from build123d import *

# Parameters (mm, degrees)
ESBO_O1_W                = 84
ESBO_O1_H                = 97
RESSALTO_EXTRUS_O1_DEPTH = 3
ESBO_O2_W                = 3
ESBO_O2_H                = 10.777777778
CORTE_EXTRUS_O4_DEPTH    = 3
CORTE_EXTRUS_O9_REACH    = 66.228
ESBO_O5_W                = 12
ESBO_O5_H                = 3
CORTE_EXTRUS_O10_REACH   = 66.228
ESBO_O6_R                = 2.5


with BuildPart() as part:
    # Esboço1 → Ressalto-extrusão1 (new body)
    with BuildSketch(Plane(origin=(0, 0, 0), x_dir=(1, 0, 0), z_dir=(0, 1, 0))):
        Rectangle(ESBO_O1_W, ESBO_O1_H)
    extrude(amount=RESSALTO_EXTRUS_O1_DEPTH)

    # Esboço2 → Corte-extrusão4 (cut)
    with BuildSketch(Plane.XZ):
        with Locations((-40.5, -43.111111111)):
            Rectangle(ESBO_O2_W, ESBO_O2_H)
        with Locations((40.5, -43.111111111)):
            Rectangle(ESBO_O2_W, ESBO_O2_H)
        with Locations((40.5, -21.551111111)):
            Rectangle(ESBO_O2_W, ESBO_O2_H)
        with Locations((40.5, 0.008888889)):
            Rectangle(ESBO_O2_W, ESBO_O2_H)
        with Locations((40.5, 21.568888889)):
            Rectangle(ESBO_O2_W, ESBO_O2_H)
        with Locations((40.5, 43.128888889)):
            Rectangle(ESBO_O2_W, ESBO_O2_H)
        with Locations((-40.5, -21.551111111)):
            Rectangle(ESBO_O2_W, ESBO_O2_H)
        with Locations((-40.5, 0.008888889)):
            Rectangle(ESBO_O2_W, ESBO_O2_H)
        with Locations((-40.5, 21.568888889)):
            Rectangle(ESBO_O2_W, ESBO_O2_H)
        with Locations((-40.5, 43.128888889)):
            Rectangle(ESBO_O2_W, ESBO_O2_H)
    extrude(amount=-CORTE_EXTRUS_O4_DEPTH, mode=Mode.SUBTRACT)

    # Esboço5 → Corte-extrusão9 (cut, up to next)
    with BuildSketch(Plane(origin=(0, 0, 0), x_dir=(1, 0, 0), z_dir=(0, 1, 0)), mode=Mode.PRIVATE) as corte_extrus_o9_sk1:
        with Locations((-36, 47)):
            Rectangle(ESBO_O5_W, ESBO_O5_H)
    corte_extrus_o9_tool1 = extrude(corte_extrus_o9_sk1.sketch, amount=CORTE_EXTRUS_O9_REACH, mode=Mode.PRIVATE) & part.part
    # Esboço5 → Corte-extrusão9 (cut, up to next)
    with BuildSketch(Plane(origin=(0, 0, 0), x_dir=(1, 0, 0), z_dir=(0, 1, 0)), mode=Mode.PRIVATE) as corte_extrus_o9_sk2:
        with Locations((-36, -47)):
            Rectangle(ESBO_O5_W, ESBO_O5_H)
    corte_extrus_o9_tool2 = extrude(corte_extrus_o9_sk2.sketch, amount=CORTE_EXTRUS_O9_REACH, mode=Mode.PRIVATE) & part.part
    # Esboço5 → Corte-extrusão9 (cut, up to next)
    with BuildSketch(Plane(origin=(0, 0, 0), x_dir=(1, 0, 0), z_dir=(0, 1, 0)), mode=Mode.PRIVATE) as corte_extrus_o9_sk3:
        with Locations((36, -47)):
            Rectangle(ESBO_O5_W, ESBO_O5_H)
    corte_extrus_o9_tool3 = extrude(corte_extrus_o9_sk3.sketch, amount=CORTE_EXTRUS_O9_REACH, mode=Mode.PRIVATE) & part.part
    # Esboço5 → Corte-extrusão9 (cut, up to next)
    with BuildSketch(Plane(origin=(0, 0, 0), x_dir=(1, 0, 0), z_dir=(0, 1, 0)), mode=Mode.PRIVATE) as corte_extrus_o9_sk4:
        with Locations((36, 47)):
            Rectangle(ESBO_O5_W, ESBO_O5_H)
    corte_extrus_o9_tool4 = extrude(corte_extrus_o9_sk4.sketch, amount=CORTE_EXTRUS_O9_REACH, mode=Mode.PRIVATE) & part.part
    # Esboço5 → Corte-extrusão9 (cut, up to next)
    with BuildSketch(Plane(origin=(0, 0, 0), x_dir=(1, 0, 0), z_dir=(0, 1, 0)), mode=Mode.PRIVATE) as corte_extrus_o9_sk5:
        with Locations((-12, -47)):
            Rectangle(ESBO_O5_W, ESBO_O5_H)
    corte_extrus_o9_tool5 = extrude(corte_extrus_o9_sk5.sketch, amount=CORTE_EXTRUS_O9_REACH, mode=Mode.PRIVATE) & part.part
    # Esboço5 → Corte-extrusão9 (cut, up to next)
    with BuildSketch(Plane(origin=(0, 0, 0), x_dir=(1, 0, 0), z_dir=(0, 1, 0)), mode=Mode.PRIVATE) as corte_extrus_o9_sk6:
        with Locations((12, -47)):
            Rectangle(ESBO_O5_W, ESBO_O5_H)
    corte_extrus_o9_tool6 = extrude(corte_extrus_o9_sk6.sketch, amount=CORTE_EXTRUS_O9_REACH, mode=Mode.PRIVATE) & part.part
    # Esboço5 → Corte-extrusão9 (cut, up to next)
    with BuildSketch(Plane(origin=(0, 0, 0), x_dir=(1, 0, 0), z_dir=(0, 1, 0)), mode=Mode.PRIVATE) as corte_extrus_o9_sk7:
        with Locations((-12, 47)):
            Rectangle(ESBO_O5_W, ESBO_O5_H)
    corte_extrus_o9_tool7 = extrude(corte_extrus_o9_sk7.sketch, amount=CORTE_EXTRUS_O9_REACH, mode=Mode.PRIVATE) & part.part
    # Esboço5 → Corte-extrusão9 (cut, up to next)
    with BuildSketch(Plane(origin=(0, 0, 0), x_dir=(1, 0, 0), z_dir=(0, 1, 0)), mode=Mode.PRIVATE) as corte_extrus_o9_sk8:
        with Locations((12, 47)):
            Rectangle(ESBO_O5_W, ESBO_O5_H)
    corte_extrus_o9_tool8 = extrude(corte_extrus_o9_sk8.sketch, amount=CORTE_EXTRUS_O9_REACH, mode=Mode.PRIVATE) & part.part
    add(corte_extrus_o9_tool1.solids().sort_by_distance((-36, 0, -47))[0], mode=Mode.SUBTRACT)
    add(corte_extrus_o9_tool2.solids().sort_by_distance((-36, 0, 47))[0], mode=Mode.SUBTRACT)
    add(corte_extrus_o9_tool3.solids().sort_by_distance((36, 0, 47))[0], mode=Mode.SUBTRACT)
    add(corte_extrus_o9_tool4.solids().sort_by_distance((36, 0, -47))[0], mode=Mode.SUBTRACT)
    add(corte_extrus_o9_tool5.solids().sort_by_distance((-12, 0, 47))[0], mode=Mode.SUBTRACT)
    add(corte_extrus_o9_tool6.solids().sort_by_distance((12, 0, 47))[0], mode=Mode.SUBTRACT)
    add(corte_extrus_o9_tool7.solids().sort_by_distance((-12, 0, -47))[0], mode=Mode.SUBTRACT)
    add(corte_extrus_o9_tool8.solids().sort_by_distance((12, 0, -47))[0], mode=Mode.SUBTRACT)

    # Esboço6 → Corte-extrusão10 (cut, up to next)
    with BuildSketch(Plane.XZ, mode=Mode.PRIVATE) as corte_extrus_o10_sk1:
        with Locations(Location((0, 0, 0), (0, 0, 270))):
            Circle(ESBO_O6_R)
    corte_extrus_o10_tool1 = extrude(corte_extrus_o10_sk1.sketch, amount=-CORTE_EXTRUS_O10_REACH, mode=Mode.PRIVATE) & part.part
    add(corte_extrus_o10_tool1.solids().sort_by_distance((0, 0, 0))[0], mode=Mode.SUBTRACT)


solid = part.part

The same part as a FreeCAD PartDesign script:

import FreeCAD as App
import Part
import Sketcher


def add_polygon(sketch, points):
    """Adds a closed chain of lines whose ends are joined by coincident constraints."""
    first, n = sketch.GeometryCount, len(points)
    for a, b in zip(points, points[1:] + points[:1]):
        sketch.addGeometry(Part.LineSegment(App.Vector(*a, 0), App.Vector(*b, 0)), False)
    for i in range(n):
        sketch.addConstraint(Sketcher.Constraint("Coincident", first + i, 2, first + (i + 1) % n, 1))

doc = App.newDocument("Part")
params = doc.addObject("Spreadsheet::Sheet", "Params")
for row, (alias, value) in enumerate([
    ("sketch1_width", "84 mm"),
    ("sketch1_height", "97 mm"),
    ("pad1_length", "3 mm"),
    ("sketch2_width", "3 mm"),
    ("pocket1_length", "3 mm"),
    ("sketch3_width", "12 mm"),
    ("sketch3_height", "3 mm"),
    ("sketch4_width", "12 mm"),
    ("sketch4_height", "3 mm"),
    ("sketch5_width", "12 mm"),
    ("sketch5_height", "3 mm"),
    ("sketch6_width", "12 mm"),
    ("sketch6_height", "3 mm"),
    ("sketch7_width", "12 mm"),
    ("sketch7_height", "3 mm"),
    ("sketch8_width", "12 mm"),
    ("sketch8_height", "3 mm"),
    ("sketch9_width", "12 mm"),
    ("sketch9_height", "3 mm"),
    ("sketch10_width", "12 mm"),
    ("sketch10_height", "3 mm"),
    ("sketch11_diameter", "5 mm"),
], start=1):
    params.set(f"A{row}", alias)
    params.set(f"B{row}", "=" + value)
    params.setAlias(f"B{row}", alias)

body = doc.addObject("PartDesign::Body", "Body")

sketch1 = body.newObject("Sketcher::SketchObject", "Sketch")
sketch1.AttachmentSupport = (doc.getObject("XZ_Plane"), [""])
sketch1.MapMode = "FlatFace"
add_polygon(sketch1, [(-42, -48), (-42, 48), (42, 48), (42, -48)])
sketch1.addConstraint(Sketcher.Constraint("Vertical", 0))
sketch1.addConstraint(Sketcher.Constraint("Horizontal", 1))
sketch1.addConstraint(Sketcher.Constraint("Vertical", 2))
sketch1.addConstraint(Sketcher.Constraint("Horizontal", 3))
sketch1.addConstraint(Sketcher.Constraint("Symmetric", 0, 2, 2, 2, -1, 1))
sketch1.addConstraint(Sketcher.Constraint("DistanceX", 1, 1, 1, 2, 84.0))
sketch1.addConstraint(Sketcher.Constraint("DistanceY", 0, 1, 0, 2, 97.0))
sketch1.setExpression("Constraints[9]", "Params.sketch1_width")
sketch1.setExpression("Constraints[10]", "Params.sketch1_height")
pad1 = body.newObject("PartDesign::Pad", "Pad")
pad1.Profile = sketch1
pad1.setExpression("Length", "Params.pad1_length")
pad1.Reversed = True

sketch2 = body.newObject("Sketcher::SketchObject", "Sketch001")
sketch2.AttachmentSupport = (doc.getObject("XZ_Plane"), [""])
sketch2.MapMode = "FlatFace"
add_polygon(sketch2, [(-42, -37.7), (-42, -48.5), (-39, -48.5), (-39, -37.7)])
add_polygon(sketch2, [(39, -37.7), (39, -48.5), (42, -48.5), (42, -37.7)])
add_polygon(sketch2, [(39, -16.2), (39, -26.9), (42, -26.9), (42, -16.2)])
add_polygon(sketch2, [(39, 5.4), (39, -5.4), (42, -5.4), (42, 5.4)])
add_polygon(sketch2, [(39, 27), (39, 16.2), (42, 16.2), (42, 27)])
add_polygon(sketch2, [(39, 48.5), (39, 37.7), (42, 37.7), (42, 48.5)])
add_polygon(sketch2, [(-42, -16.2), (-42, -26.9), (-39, -26.9), (-39, -16.2)])
add_polygon(sketch2, [(-42, 5.4), (-42, -5.4), (-39, -5.4), (-39, 5.4)])
add_polygon(sketch2, [(-42, 27), (-42, 16.2), (-39, 16.2), (-39, 27)])
add_polygon(sketch2, [(-42, 48.5), (-42, 37.7), (-39, 37.7), (-39, 48.5)])
sketch2.addConstraint(Sketcher.Constraint("Vertical", 0))
sketch2.addConstraint(Sketcher.Constraint("Horizontal", 1))
sketch2.addConstraint(Sketcher.Constraint("Vertical", 2))
sketch2.addConstraint(Sketcher.Constraint("Horizontal", 3))
sketch2.addConstraint(Sketcher.Constraint("Vertical", 4))
sketch2.addConstraint(Sketcher.Constraint("Horizontal", 5))
sketch2.addConstraint(Sketcher.Constraint("Vertical", 6))
sketch2.addConstraint(Sketcher.Constraint("Horizontal", 7))
sketch2.addConstraint(Sketcher.Constraint("Vertical", 8))
sketch2.addConstraint(Sketcher.Constraint("Horizontal", 9))
sketch2.addConstraint(Sketcher.Constraint("Vertical", 10))
sketch2.addConstraint(Sketcher.Constraint("Horizontal", 11))
sketch2.addConstraint(Sketcher.Constraint("Vertical", 12))
sketch2.addConstraint(Sketcher.Constraint("Horizontal", 13))
sketch2.addConstraint(Sketcher.Constraint("Vertical", 14))
sketch2.addConstraint(Sketcher.Constraint("Horizontal", 15))
sketch2.addConstraint(Sketcher.Constraint("Vertical", 16))
sketch2.addConstraint(Sketcher.Constraint("Horizontal", 17))
sketch2.addConstraint(Sketcher.Constraint("Vertical", 18))
sketch2.addConstraint(Sketcher.Constraint("Horizontal", 19))
sketch2.addConstraint(Sketcher.Constraint("Vertical", 20))
sketch2.addConstraint(Sketcher.Constraint("Horizontal", 21))
sketch2.addConstraint(Sketcher.Constraint("Vertical", 22))
sketch2.addConstraint(Sketcher.Constraint("Horizontal", 23))
sketch2.addConstraint(Sketcher.Constraint("Vertical", 24))
sketch2.addConstraint(Sketcher.Constraint("Horizontal", 25))
sketch2.addConstraint(Sketcher.Constraint("Vertical", 26))
sketch2.addConstraint(Sketcher.Constraint("Horizontal", 27))
sketch2.addConstraint(Sketcher.Constraint("Vertical", 28))
sketch2.addConstraint(Sketcher.Constraint("Horizontal", 29))
sketch2.addConstraint(Sketcher.Constraint("Vertical", 30))
sketch2.addConstraint(Sketcher.Constraint("Horizontal", 31))
sketch2.addConstraint(Sketcher.Constraint("Vertical", 32))
sketch2.addConstraint(Sketcher.Constraint("Horizontal", 33))
sketch2.addConstraint(Sketcher.Constraint("Vertical", 34))
sketch2.addConstraint(Sketcher.Constraint("Horizontal", 35))
sketch2.addConstraint(Sketcher.Constraint("Vertical", 36))
sketch2.addConstraint(Sketcher.Constraint("Horizontal", 37))
sketch2.addConstraint(Sketcher.Constraint("Vertical", 38))
sketch2.addConstraint(Sketcher.Constraint("Horizontal", 39))
sketch2.addConstraint(Sketcher.Constraint("Symmetric", 1, 2, 4, 2, -2))
sketch2.addConstraint(Sketcher.Constraint("Symmetric", 3, 2, 6, 2, -2))
sketch2.addConstraint(Sketcher.Constraint("Symmetric", 9, 2, 24, 2, -2))
sketch2.addConstraint(Sketcher.Constraint("Symmetric", 11, 2, 26, 2, -2))
sketch2.addConstraint(Sketcher.Constraint("Symmetric", 13, 2, 28, 2, -2))
sketch2.addConstraint(Sketcher.Constraint("Symmetric", 15, 2, 30, 2, -2))
sketch2.addConstraint(Sketcher.Constraint("Symmetric", 17, 2, 32, 2, -2))
sketch2.addConstraint(Sketcher.Constraint("Symmetric", 19, 2, 34, 2, -2))
sketch2.addConstraint(Sketcher.Constraint("Symmetric", 21, 2, 36, 2, -2))
sketch2.addConstraint(Sketcher.Constraint("Symmetric", 23, 2, 38, 2, -2))
sketch2.addConstraint(Sketcher.Constraint("Vertical", 7, 2, 8, 2))
sketch2.addConstraint(Sketcher.Constraint("Vertical", 6, 2, 9, 2))
sketch2.addConstraint(Sketcher.Constraint("Vertical", 11, 2, 12, 2))
sketch2.addConstraint(Sketcher.Constraint("Vertical", 10, 2, 13, 2))
sketch2.addConstraint(Sketcher.Constraint("Vertical", 15, 2, 16, 2))
sketch2.addConstraint(Sketcher.Constraint("Vertical", 14, 2, 17, 2))
sketch2.addConstraint(Sketcher.Constraint("Vertical", 19, 2, 20, 2))
sketch2.addConstraint(Sketcher.Constraint("Vertical", 18, 2, 21, 2))
sketch2.addConstraint(Sketcher.Constraint("Equal", 6, 8))
sketch2.addConstraint(Sketcher.Constraint("Equal", 10, 12))
sketch2.addConstraint(Sketcher.Constraint("Equal", 14, 16))
sketch2.addConstraint(Sketcher.Constraint("Equal", 18, 20))
sketch2.addConstraint(Sketcher.Constraint("DistanceX", 1, 1, 1, 2, 3.0))
sketch2.addConstraint(Sketcher.Constraint("DistanceX", 0, 2, -1, 1, 42.0))
sketch2.addConstraint(Sketcher.Constraint("DistanceY", 0, 2, -1, 1, 48.5))
sketch2.addConstraint(Sketcher.Constraint("DistanceY", 8, 2, -1, 1, 26.94))
sketch2.addConstraint(Sketcher.Constraint("DistanceY", 12, 2, -1, 1, 5.38))
sketch2.addConstraint(Sketcher.Constraint("DistanceY", -1, 1, 16, 2, 16.18))
sketch2.addConstraint(Sketcher.Constraint("DistanceY", -1, 1, 20, 2, 37.74))
sketch2.addConstraint(Sketcher.Constraint("DistanceY", 0, 2, 0, 1, 10.777778))
sketch2.setExpression("Constraints[102]", "Params.sketch2_width")
pocket1 = body.newObject("PartDesign::Pocket", "Pocket")
pocket1.Profile = sketch2
pocket1.setExpression("Length", "Params.pocket1_length")

sketch3 = body.newObject("Sketcher::SketchObject", "Sketch002")
sketch3.AttachmentSupport = (doc.getObject("XZ_Plane"), [""])
sketch3.MapMode = "FlatFace"
add_polygon(sketch3, [(-42, -48.5), (-42, -45.5), (-30, -45.5), (-30, -48.5)])
sketch3.addConstraint(Sketcher.Constraint("Vertical", 0))
sketch3.addConstraint(Sketcher.Constraint("Horizontal", 1))
sketch3.addConstraint(Sketcher.Constraint("Vertical", 2))
sketch3.addConstraint(Sketcher.Constraint("Horizontal", 3))
sketch3.addConstraint(Sketcher.Constraint("DistanceX", 1, 1, 1, 2, 12.0))
sketch3.addConstraint(Sketcher.Constraint("DistanceY", 0, 1, 0, 2, 3.0))
sketch3.addConstraint(Sketcher.Constraint("DistanceX", 0, 2, -1, 1, 42.0))
sketch3.addConstraint(Sketcher.Constraint("DistanceY", 0, 2, -1, 1, 45.5))
sketch3.setExpression("Constraints[8]", "Params.sketch3_width")
sketch3.setExpression("Constraints[9]", "Params.sketch3_height")
pocket2 = body.newObject("PartDesign::Pocket", "Pocket001")
pocket2.Profile = sketch3
pocket2.Type = "UpToFirst"

sketch4 = body.newObject("Sketcher::SketchObject", "Sketch003")
sketch4.AttachmentSupport = (doc.getObject("XZ_Plane"), [""])
sketch4.MapMode = "FlatFace"
add_polygon(sketch4, [(-42, 45.5), (-42, 48.5), (-30, 48.5), (-30, 45.5)])
sketch4.addConstraint(Sketcher.Constraint("Vertical", 0))
sketch4.addConstraint(Sketcher.Constraint("Horizontal", 1))
sketch4.addConstraint(Sketcher.Constraint("Vertical", 2))
sketch4.addConstraint(Sketcher.Constraint("Horizontal", 3))
sketch4.addConstraint(Sketcher.Constraint("DistanceX", 1, 1, 1, 2, 12.0))
sketch4.addConstraint(Sketcher.Constraint("DistanceY", 0, 1, 0, 2, 3.0))
sketch4.addConstraint(Sketcher.Constraint("DistanceX", 0, 2, -1, 1, 42.0))
sketch4.addConstraint(Sketcher.Constraint("DistanceY", -1, 1, 0, 2, 48.5))
sketch4.setExpression("Constraints[8]", "Params.sketch4_width")
sketch4.setExpression("Constraints[9]", "Params.sketch4_height")
pocket3 = body.newObject("PartDesign::Pocket", "Pocket002")
pocket3.Profile = sketch4
pocket3.Type = "UpToFirst"

sketch5 = body.newObject("Sketcher::SketchObject", "Sketch004")
sketch5.AttachmentSupport = (doc.getObject("XZ_Plane"), [""])
sketch5.MapMode = "FlatFace"
add_polygon(sketch5, [(30, 45.5), (30, 48.5), (42, 48.5), (42, 45.5)])
sketch5.addConstraint(Sketcher.Constraint("Vertical", 0))
sketch5.addConstraint(Sketcher.Constraint("Horizontal", 1))
sketch5.addConstraint(Sketcher.Constraint("Vertical", 2))
sketch5.addConstraint(Sketcher.Constraint("Horizontal", 3))
sketch5.addConstraint(Sketcher.Constraint("DistanceX", 1, 1, 1, 2, 12.0))
sketch5.addConstraint(Sketcher.Constraint("DistanceY", 0, 1, 0, 2, 3.0))
sketch5.addConstraint(Sketcher.Constraint("DistanceX", -1, 1, 0, 2, 30.0))
sketch5.addConstraint(Sketcher.Constraint("DistanceY", -1, 1, 0, 2, 48.5))
sketch5.setExpression("Constraints[8]", "Params.sketch5_width")
sketch5.setExpression("Constraints[9]", "Params.sketch5_height")
pocket4 = body.newObject("PartDesign::Pocket", "Pocket003")
pocket4.Profile = sketch5
pocket4.Type = "UpToFirst"

sketch6 = body.newObject("Sketcher::SketchObject", "Sketch005")
sketch6.AttachmentSupport = (doc.getObject("XZ_Plane"), [""])
sketch6.MapMode = "FlatFace"
add_polygon(sketch6, [(30, -48.5), (30, -45.5), (42, -45.5), (42, -48.5)])
sketch6.addConstraint(Sketcher.Constraint("Vertical", 0))
sketch6.addConstraint(Sketcher.Constraint("Horizontal", 1))
sketch6.addConstraint(Sketcher.Constraint("Vertical", 2))
sketch6.addConstraint(Sketcher.Constraint("Horizontal", 3))
sketch6.addConstraint(Sketcher.Constraint("DistanceX", 1, 1, 1, 2, 12.0))
sketch6.addConstraint(Sketcher.Constraint("DistanceY", 0, 1, 0, 2, 3.0))
sketch6.addConstraint(Sketcher.Constraint("DistanceX", -1, 1, 0, 2, 30.0))
sketch6.addConstraint(Sketcher.Constraint("DistanceY", 0, 2, -1, 1, 45.5))
sketch6.setExpression("Constraints[8]", "Params.sketch6_width")
sketch6.setExpression("Constraints[9]", "Params.sketch6_height")
pocket5 = body.newObject("PartDesign::Pocket", "Pocket004")
pocket5.Profile = sketch6
pocket5.Type = "UpToFirst"

sketch7 = body.newObject("Sketcher::SketchObject", "Sketch006")
sketch7.AttachmentSupport = (doc.getObject("XZ_Plane"), [""])
sketch7.MapMode = "FlatFace"
add_polygon(sketch7, [(-18, 45.5), (-18, 48.5), (-6, 48.5), (-6, 45.5)])
sketch7.addConstraint(Sketcher.Constraint("Vertical", 0))
sketch7.addConstraint(Sketcher.Constraint("Horizontal", 1))
sketch7.addConstraint(Sketcher.Constraint("Vertical", 2))
sketch7.addConstraint(Sketcher.Constraint("Horizontal", 3))
sketch7.addConstraint(Sketcher.Constraint("DistanceX", 1, 1, 1, 2, 12.0))
sketch7.addConstraint(Sketcher.Constraint("DistanceY", 0, 1, 0, 2, 3.0))
sketch7.addConstraint(Sketcher.Constraint("DistanceX", 0, 2, -1, 1, 18.0))
sketch7.addConstraint(Sketcher.Constraint("DistanceY", -1, 1, 0, 2, 48.5))
sketch7.setExpression("Constraints[8]", "Params.sketch7_width")
sketch7.setExpression("Constraints[9]", "Params.sketch7_height")
pocket6 = body.newObject("PartDesign::Pocket", "Pocket005")
pocket6.Profile = sketch7
pocket6.Type = "UpToFirst"

sketch8 = body.newObject("Sketcher::SketchObject", "Sketch007")
sketch8.AttachmentSupport = (doc.getObject("XZ_Plane"), [""])
sketch8.MapMode = "FlatFace"
add_polygon(sketch8, [(6, 45.5), (6, 48.5), (18, 48.5), (18, 45.5)])
sketch8.addConstraint(Sketcher.Constraint("Vertical", 0))
sketch8.addConstraint(Sketcher.Constraint("Horizontal", 1))
sketch8.addConstraint(Sketcher.Constraint("Vertical", 2))
sketch8.addConstraint(Sketcher.Constraint("Horizontal", 3))
sketch8.addConstraint(Sketcher.Constraint("DistanceX", 1, 1, 1, 2, 12.0))
sketch8.addConstraint(Sketcher.Constraint("DistanceY", 0, 1, 0, 2, 3.0))
sketch8.addConstraint(Sketcher.Constraint("DistanceX", -1, 1, 0, 2, 6.0))
sketch8.addConstraint(Sketcher.Constraint("DistanceY", -1, 1, 0, 2, 48.5))
sketch8.setExpression("Constraints[8]", "Params.sketch8_width")
sketch8.setExpression("Constraints[9]", "Params.sketch8_height")
pocket7 = body.newObject("PartDesign::Pocket", "Pocket006")
pocket7.Profile = sketch8
pocket7.Type = "UpToFirst"

sketch9 = body.newObject("Sketcher::SketchObject", "Sketch008")
sketch9.AttachmentSupport = (doc.getObject("XZ_Plane"), [""])
sketch9.MapMode = "FlatFace"
add_polygon(sketch9, [(-18, -48.5), (-18, -45.5), (-6, -45.5), (-6, -48.5)])
sketch9.addConstraint(Sketcher.Constraint("Vertical", 0))
sketch9.addConstraint(Sketcher.Constraint("Horizontal", 1))
sketch9.addConstraint(Sketcher.Constraint("Vertical", 2))
sketch9.addConstraint(Sketcher.Constraint("Horizontal", 3))
sketch9.addConstraint(Sketcher.Constraint("DistanceX", 1, 1, 1, 2, 12.0))
sketch9.addConstraint(Sketcher.Constraint("DistanceY", 0, 1, 0, 2, 3.0))
sketch9.addConstraint(Sketcher.Constraint("DistanceX", 0, 2, -1, 1, 18.0))
sketch9.addConstraint(Sketcher.Constraint("DistanceY", 0, 2, -1, 1, 45.5))
sketch9.setExpression("Constraints[8]", "Params.sketch9_width")
sketch9.setExpression("Constraints[9]", "Params.sketch9_height")
pocket8 = body.newObject("PartDesign::Pocket", "Pocket007")
pocket8.Profile = sketch9
pocket8.Type = "UpToFirst"

sketch10 = body.newObject("Sketcher::SketchObject", "Sketch009")
sketch10.AttachmentSupport = (doc.getObject("XZ_Plane"), [""])
sketch10.MapMode = "FlatFace"
add_polygon(sketch10, [(6, -48.5), (6, -45.5), (18, -45.5), (18, -48.5)])
sketch10.addConstraint(Sketcher.Constraint("Vertical", 0))
sketch10.addConstraint(Sketcher.Constraint("Horizontal", 1))
sketch10.addConstraint(Sketcher.Constraint("Vertical", 2))
sketch10.addConstraint(Sketcher.Constraint("Horizontal", 3))
sketch10.addConstraint(Sketcher.Constraint("DistanceX", 1, 1, 1, 2, 12.0))
sketch10.addConstraint(Sketcher.Constraint("DistanceY", 0, 1, 0, 2, 3.0))
sketch10.addConstraint(Sketcher.Constraint("DistanceX", -1, 1, 0, 2, 6.0))
sketch10.addConstraint(Sketcher.Constraint("DistanceY", 0, 2, -1, 1, 45.5))
sketch10.setExpression("Constraints[8]", "Params.sketch10_width")
sketch10.setExpression("Constraints[9]", "Params.sketch10_height")
pocket9 = body.newObject("PartDesign::Pocket", "Pocket008")
pocket9.Profile = sketch10
pocket9.Type = "UpToFirst"

sketch11 = body.newObject("Sketcher::SketchObject", "Sketch010")
sketch11.AttachmentSupport = (doc.getObject("XZ_Plane"), [""])
sketch11.MapMode = "FlatFace"
sketch11.addGeometry(Part.Circle(App.Vector(0, 0, 0), App.Vector(0, 0, 1), 2.5), False)
sketch11.addConstraint(Sketcher.Constraint("Coincident", 0, 3, -1, 1))
sketch11.addConstraint(Sketcher.Constraint("Diameter", 0, 5.0))
sketch11.setExpression("Constraints[1]", "Params.sketch11_diameter")
pocket10 = body.newObject("PartDesign::Pocket", "Pocket009")
pocket10.Profile = sketch11
pocket10.Type = "UpToFirst"

doc.recompute()
